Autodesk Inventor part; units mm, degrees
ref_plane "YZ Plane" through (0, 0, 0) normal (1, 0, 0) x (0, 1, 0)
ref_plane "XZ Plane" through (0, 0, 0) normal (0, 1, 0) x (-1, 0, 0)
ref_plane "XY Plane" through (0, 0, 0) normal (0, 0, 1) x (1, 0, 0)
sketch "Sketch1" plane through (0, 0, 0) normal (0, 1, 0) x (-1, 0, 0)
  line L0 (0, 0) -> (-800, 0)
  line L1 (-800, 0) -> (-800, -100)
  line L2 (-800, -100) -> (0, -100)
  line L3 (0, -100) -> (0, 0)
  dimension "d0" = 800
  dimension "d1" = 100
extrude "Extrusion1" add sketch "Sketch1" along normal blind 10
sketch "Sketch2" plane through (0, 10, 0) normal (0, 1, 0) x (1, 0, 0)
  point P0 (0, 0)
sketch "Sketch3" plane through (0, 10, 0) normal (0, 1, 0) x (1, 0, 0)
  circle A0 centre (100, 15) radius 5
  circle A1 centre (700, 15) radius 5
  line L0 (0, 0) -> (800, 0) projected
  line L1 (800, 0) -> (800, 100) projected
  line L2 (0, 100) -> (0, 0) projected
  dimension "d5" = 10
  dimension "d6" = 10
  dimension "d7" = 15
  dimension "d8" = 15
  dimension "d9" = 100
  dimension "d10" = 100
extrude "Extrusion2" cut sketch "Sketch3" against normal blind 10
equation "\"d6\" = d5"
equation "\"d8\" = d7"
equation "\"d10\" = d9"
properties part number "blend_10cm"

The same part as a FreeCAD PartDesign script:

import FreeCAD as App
import Part
import Sketcher

V = App.Vector
Q = App.Units.Quantity


def add_polygon(sketch, points):
    """Adds a closed chain of lines whose ends are joined by coincident constraints."""
    first, n = sketch.GeometryCount, len(points)
    for a, b in zip(points, points[1:] + points[:1]):
        sketch.addGeometry(Part.LineSegment(App.Vector(*a, 0), App.Vector(*b, 0)), False)
    for i in range(n):
        sketch.addConstraint(Sketcher.Constraint("Coincident", first + i, 2, first + (i + 1) % n, 1))

doc = App.newDocument("Part")
body = doc.addObject("PartDesign::Body", "Body")

# Sketch on XZ plane
sketch1 = body.newObject("Sketcher::SketchObject", "Sketch")
sketch1.AttachmentSupport = (doc.getObject("XZ_Plane"), [""])
sketch1.MapMode = "FlatFace"
add_polygon(sketch1, [(0, -100), (0, 0), (800, 0), (800, -100)])  # lines 0-3
sketch1.addConstraint([
    Sketcher.Constraint("Vertical", 0),
    Sketcher.Constraint("Horizontal", 1),
    Sketcher.Constraint("Vertical", 2),
    Sketcher.Constraint("Horizontal", 3),
    Sketcher.Constraint("Coincident", 0, 2, -1, 1),
    Sketcher.Constraint("DistanceX", 1, 1, 1, 2, Q("800 mm")),
    Sketcher.Constraint("DistanceY", 0, 1, 0, 2, Q("100 mm")),
])
pad1 = body.newObject("PartDesign::Pad", "Pad")
pad1.Profile = sketch1
pad1.Length = 10
pad1.Reversed = True

# Sketch on XZ plane
sketch2 = body.newObject("Sketcher::SketchObject", "Sketch001")
sketch2.AttachmentSupport = (doc.getObject("XZ_Plane"), [""])
sketch2.MapMode = "FlatFace"
sketch2.AttachmentOffset = App.Placement(V(0, 0, -10), App.Rotation())
sketch2.addGeometry([
    Part.Circle(V(100, -15, 0), V(0, 0, 1), 5),
    Part.Circle(V(700, -15, 0), V(0, 0, 1), 5),
], False)
sketch2.addConstraint([
    Sketcher.Constraint("Equal", 0, 1),
    Sketcher.Constraint("Horizontal", 0, 3, 1, 3),
    Sketcher.Constraint("Diameter", 0, Q("10 mm")),
    Sketcher.Constraint("DistanceX", -1, 1, 0, 3, Q("100 mm")),
    Sketcher.Constraint("DistanceY", 0, 3, -1, 1, Q("15 mm")),
    Sketcher.Constraint("DistanceX", -1, 1, 1, 3, Q("700 mm")),
])
pocket1 = body.newObject("PartDesign::Pocket", "Pocket")
pocket1.Profile = sketch2
pocket1.Length = 10
pocket1.Reversed = True

doc.recompute()
